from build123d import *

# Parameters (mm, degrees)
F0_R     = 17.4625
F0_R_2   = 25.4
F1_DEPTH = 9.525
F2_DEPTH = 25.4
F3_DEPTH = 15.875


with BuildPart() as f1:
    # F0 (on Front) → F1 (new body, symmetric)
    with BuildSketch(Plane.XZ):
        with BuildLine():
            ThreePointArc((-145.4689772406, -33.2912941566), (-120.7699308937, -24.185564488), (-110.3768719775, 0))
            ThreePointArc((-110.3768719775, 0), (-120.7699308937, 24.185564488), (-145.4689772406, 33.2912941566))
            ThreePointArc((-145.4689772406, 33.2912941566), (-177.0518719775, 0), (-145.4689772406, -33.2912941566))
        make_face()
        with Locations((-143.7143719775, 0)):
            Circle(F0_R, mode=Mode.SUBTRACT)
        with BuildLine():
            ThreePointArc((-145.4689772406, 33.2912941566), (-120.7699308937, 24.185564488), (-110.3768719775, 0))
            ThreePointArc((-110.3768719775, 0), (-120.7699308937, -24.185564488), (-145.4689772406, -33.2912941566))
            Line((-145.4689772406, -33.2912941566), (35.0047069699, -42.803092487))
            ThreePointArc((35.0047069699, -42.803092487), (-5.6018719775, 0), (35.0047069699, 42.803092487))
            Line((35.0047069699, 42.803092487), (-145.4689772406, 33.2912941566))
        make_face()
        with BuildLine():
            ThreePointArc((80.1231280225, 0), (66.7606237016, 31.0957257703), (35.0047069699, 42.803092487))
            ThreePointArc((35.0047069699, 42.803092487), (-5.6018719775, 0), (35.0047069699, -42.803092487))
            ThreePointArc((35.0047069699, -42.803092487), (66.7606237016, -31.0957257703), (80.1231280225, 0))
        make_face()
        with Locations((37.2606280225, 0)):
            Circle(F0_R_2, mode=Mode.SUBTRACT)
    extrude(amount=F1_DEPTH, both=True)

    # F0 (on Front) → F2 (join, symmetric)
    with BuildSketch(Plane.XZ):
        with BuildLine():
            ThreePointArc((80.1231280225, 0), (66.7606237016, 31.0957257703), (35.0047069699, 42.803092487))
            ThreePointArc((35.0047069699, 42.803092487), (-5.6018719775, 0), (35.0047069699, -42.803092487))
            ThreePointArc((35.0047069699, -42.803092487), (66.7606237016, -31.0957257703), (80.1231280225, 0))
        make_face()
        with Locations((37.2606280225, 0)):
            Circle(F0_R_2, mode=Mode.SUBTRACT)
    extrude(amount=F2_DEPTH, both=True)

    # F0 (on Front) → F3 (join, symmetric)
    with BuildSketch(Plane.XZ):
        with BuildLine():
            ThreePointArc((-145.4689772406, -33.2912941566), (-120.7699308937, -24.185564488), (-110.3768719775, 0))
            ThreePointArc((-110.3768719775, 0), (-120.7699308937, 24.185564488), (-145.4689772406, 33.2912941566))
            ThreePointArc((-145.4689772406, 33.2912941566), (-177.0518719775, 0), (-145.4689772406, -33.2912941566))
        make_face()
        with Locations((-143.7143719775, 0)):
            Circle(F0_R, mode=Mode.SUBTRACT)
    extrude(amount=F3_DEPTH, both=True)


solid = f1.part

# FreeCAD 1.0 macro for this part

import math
import FreeCAD as App
import Part
import Sketcher
from FreeCAD import Vector
Q = App.Units.Quantity

doc = App.newDocument("Part")
params = doc.addObject("Spreadsheet::Sheet", "Params")
for row, (alias, value) in enumerate([
    ("sketch1_diameter", "2 in"),
    ("sketch1_diameter2", "1.375 in"),
    ("sketch1_radius", "1.3125 in"),
    ("sketch1_radius2", "1.6875 in"),
    ("pad1_length", "0.75 in"),
    ("sketch2_diameter", "2 in"),
    ("sketch2_radius", "1.6875 in"),
    ("pad2_length", "2 in"),
    ("sketch3_diameter", "2.625 in"),
    ("sketch3_diameter2", "1.375 in"),
    ("pad3_length", "1.25 in"),
], start=1):
    params.set(f"A{row}", alias)
    params.set(f"B{row}", "=" + value)
    params.setAlias(f"B{row}", alias)

body = doc.addObject("PartDesign::Body", "Body")

# Sketch on XZ plane
sketch1 = body.newObject("Sketcher::SketchObject", "Sketch")
sketch1.AttachmentSupport = (doc.getObject("XZ_Plane"), [""])
sketch1.MapMode = "FlatFace"
sketch1.addGeometry(Part.ArcOfCircle(Part.Circle(Vector(-143.714372, 0, 0), Vector(0, 0, 1), 33.3375), math.radians(93.016961), math.radians(266.983039)), False)
sketch1.addGeometry(Part.LineSegment(Vector(-145.468977, -33.291294, 0), Vector(35.004707, -42.803092, 0)), False)
sketch1.addGeometry(Part.ArcOfCircle(Part.Circle(Vector(37.260628, 0, 0), Vector(0, 0, 1), 42.8625), math.radians(-93.016961), math.radians(93.016961)), False)
sketch1.addGeometry(Part.LineSegment(Vector(35.004707, 42.803092, 0), Vector(-145.468977, 33.291294, 0)), False)
sketch1.addGeometry(Part.Circle(Vector(-143.714372, 0, 0), Vector(0, 0, 1), 17.4625), False)
sketch1.addGeometry(Part.Circle(Vector(37.260628, 0, 0), Vector(0, 0, 1), 25.4), False)
sketch1.addConstraint(Sketcher.Constraint("Tangent", 0, 2, 1, 1))
sketch1.addConstraint(Sketcher.Constraint("Tangent", 1, 2, 2, 1))
sketch1.addConstraint(Sketcher.Constraint("Tangent", 2, 2, 3, 1))
sketch1.addConstraint(Sketcher.Constraint("Tangent", 3, 2, 0, 1))
sketch1.addConstraint(Sketcher.Constraint("Coincident", 4, 3, 0, 3))
sketch1.addConstraint(Sketcher.Constraint("Coincident", 5, 3, 2, 3))
sketch1.addConstraint(Sketcher.Constraint("Symmetric", 1, 2, 2, 2, -1))
sketch1.addConstraint(Sketcher.Constraint("Diameter", 5, Q("2 in")))
sketch1.addConstraint(Sketcher.Constraint("Diameter", 4, Q("1.375 in")))
sketch1.addConstraint(Sketcher.Constraint("Radius", 0, Q("1.3125 in")))
sketch1.addConstraint(Sketcher.Constraint("Radius", 2, Q("1.6875 in")))
sketch1.addConstraint(Sketcher.Constraint("DistanceX", 0, 3, 2, 3, Q("7.125 in")))
sketch1.addConstraint(Sketcher.Constraint("DistanceX", 0, 3, -1, 1, 143.714372))
sketch1.setExpression("Constraints[7]", "Params.sketch1_diameter")
sketch1.setExpression("Constraints[8]", "Params.sketch1_diameter2")
sketch1.setExpression("Constraints[9]", "Params.sketch1_radius")
sketch1.setExpression("Constraints[10]", "Params.sketch1_radius2")
pad1 = body.newObject("PartDesign::Pad", "Pad")
pad1.Profile = sketch1
pad1.setExpression("Length", "Params.pad1_length")
pad1.Midplane = True

# Sketch on XZ plane
sketch2 = body.newObject("Sketcher::SketchObject", "Sketch001")
sketch2.AttachmentSupport = (doc.getObject("XZ_Plane"), [""])
sketch2.MapMode = "FlatFace"
sketch2.addGeometry(Part.ArcOfCircle(Part.Circle(Vector(37.260628, 0, 0), Vector(0, 0, 1), 42.8625), math.radians(93.016961), math.radians(266.983039)), False)
sketch2.addGeometry(Part.ArcOfCircle(Part.Circle(Vector(37.260628, 0, 0), Vector(0, 0, 1), 42.8625), math.radians(-93.016961), math.radians(93.016961)), False)
sketch2.addGeometry(Part.Circle(Vector(37.260628, 0, 0), Vector(0, 0, 1), 25.4), False)
sketch2.addConstraint(Sketcher.Constraint("Tangent", 0, 1, 1, 2))
sketch2.addConstraint(Sketcher.Constraint("Coincident", 1, 1, 0, 2))
sketch2.addConstraint(Sketcher.Constraint("Coincident", 2, 3, 0, 3))
sketch2.addConstraint(Sketcher.Constraint("Symmetric", 0, 1, 1, 1, -1))
sketch2.addConstraint(Sketcher.Constraint("Diameter", 2, Q("2 in")))
sketch2.addConstraint(Sketcher.Constraint("Radius", 0, Q("1.6875 in")))
sketch2.addConstraint(Sketcher.Constraint("DistanceX", -1, 1, 0, 3, 37.260628))
sketch2.addConstraint(Sketcher.Constraint("DistanceX", 0, 1, 0, 3, 2.255921))
sketch2.setExpression("Constraints[4]", "Params.sketch2_diameter")
sketch2.setExpression("Constraints[5]", "Params.sketch2_radius")
pad2 = body.newObject("PartDesign::Pad", "Pad001")
pad2.Profile = sketch2
pad2.setExpression("Length", "Params.pad2_length")
pad2.Midplane = True

# Sketch on XZ plane
sketch3 = body.newObject("Sketcher::SketchObject", "Sketch002")
sketch3.AttachmentSupport = (doc.getObject("XZ_Plane"), [""])
sketch3.MapMode = "FlatFace"
sketch3.addGeometry(Part.Circle(Vector(-143.714372, 0, 0), Vector(0, 0, 1), 33.3375), False)
sketch3.addGeometry(Part.Circle(Vector(-143.714372, 0, 0), Vector(0, 0, 1), 17.4625), False)
sketch3.addConstraint(Sketcher.Constraint("Coincident", 1, 3, 0, 3))
sketch3.addConstraint(Sketcher.Constraint("PointOnObject", 0, 3, -1))
sketch3.addConstraint(Sketcher.Constraint("Diameter", 0, Q("2.625 in")))
sketch3.addConstraint(Sketcher.Constraint("Diameter", 1, Q("1.375 in")))
sketch3.addConstraint(Sketcher.Constraint("DistanceX", 0, 3, -1, 1, 143.714372))
sketch3.setExpression("Constraints[2]", "Params.sketch3_diameter")
sketch3.setExpression("Constraints[3]", "Params.sketch3_diameter2")
pad3 = body.newObject("PartDesign::Pad", "Pad002")
pad3.Profile = sketch3
pad3.setExpression("Length", "Params.pad3_length")
pad3.Midplane = True

doc.recompute()
